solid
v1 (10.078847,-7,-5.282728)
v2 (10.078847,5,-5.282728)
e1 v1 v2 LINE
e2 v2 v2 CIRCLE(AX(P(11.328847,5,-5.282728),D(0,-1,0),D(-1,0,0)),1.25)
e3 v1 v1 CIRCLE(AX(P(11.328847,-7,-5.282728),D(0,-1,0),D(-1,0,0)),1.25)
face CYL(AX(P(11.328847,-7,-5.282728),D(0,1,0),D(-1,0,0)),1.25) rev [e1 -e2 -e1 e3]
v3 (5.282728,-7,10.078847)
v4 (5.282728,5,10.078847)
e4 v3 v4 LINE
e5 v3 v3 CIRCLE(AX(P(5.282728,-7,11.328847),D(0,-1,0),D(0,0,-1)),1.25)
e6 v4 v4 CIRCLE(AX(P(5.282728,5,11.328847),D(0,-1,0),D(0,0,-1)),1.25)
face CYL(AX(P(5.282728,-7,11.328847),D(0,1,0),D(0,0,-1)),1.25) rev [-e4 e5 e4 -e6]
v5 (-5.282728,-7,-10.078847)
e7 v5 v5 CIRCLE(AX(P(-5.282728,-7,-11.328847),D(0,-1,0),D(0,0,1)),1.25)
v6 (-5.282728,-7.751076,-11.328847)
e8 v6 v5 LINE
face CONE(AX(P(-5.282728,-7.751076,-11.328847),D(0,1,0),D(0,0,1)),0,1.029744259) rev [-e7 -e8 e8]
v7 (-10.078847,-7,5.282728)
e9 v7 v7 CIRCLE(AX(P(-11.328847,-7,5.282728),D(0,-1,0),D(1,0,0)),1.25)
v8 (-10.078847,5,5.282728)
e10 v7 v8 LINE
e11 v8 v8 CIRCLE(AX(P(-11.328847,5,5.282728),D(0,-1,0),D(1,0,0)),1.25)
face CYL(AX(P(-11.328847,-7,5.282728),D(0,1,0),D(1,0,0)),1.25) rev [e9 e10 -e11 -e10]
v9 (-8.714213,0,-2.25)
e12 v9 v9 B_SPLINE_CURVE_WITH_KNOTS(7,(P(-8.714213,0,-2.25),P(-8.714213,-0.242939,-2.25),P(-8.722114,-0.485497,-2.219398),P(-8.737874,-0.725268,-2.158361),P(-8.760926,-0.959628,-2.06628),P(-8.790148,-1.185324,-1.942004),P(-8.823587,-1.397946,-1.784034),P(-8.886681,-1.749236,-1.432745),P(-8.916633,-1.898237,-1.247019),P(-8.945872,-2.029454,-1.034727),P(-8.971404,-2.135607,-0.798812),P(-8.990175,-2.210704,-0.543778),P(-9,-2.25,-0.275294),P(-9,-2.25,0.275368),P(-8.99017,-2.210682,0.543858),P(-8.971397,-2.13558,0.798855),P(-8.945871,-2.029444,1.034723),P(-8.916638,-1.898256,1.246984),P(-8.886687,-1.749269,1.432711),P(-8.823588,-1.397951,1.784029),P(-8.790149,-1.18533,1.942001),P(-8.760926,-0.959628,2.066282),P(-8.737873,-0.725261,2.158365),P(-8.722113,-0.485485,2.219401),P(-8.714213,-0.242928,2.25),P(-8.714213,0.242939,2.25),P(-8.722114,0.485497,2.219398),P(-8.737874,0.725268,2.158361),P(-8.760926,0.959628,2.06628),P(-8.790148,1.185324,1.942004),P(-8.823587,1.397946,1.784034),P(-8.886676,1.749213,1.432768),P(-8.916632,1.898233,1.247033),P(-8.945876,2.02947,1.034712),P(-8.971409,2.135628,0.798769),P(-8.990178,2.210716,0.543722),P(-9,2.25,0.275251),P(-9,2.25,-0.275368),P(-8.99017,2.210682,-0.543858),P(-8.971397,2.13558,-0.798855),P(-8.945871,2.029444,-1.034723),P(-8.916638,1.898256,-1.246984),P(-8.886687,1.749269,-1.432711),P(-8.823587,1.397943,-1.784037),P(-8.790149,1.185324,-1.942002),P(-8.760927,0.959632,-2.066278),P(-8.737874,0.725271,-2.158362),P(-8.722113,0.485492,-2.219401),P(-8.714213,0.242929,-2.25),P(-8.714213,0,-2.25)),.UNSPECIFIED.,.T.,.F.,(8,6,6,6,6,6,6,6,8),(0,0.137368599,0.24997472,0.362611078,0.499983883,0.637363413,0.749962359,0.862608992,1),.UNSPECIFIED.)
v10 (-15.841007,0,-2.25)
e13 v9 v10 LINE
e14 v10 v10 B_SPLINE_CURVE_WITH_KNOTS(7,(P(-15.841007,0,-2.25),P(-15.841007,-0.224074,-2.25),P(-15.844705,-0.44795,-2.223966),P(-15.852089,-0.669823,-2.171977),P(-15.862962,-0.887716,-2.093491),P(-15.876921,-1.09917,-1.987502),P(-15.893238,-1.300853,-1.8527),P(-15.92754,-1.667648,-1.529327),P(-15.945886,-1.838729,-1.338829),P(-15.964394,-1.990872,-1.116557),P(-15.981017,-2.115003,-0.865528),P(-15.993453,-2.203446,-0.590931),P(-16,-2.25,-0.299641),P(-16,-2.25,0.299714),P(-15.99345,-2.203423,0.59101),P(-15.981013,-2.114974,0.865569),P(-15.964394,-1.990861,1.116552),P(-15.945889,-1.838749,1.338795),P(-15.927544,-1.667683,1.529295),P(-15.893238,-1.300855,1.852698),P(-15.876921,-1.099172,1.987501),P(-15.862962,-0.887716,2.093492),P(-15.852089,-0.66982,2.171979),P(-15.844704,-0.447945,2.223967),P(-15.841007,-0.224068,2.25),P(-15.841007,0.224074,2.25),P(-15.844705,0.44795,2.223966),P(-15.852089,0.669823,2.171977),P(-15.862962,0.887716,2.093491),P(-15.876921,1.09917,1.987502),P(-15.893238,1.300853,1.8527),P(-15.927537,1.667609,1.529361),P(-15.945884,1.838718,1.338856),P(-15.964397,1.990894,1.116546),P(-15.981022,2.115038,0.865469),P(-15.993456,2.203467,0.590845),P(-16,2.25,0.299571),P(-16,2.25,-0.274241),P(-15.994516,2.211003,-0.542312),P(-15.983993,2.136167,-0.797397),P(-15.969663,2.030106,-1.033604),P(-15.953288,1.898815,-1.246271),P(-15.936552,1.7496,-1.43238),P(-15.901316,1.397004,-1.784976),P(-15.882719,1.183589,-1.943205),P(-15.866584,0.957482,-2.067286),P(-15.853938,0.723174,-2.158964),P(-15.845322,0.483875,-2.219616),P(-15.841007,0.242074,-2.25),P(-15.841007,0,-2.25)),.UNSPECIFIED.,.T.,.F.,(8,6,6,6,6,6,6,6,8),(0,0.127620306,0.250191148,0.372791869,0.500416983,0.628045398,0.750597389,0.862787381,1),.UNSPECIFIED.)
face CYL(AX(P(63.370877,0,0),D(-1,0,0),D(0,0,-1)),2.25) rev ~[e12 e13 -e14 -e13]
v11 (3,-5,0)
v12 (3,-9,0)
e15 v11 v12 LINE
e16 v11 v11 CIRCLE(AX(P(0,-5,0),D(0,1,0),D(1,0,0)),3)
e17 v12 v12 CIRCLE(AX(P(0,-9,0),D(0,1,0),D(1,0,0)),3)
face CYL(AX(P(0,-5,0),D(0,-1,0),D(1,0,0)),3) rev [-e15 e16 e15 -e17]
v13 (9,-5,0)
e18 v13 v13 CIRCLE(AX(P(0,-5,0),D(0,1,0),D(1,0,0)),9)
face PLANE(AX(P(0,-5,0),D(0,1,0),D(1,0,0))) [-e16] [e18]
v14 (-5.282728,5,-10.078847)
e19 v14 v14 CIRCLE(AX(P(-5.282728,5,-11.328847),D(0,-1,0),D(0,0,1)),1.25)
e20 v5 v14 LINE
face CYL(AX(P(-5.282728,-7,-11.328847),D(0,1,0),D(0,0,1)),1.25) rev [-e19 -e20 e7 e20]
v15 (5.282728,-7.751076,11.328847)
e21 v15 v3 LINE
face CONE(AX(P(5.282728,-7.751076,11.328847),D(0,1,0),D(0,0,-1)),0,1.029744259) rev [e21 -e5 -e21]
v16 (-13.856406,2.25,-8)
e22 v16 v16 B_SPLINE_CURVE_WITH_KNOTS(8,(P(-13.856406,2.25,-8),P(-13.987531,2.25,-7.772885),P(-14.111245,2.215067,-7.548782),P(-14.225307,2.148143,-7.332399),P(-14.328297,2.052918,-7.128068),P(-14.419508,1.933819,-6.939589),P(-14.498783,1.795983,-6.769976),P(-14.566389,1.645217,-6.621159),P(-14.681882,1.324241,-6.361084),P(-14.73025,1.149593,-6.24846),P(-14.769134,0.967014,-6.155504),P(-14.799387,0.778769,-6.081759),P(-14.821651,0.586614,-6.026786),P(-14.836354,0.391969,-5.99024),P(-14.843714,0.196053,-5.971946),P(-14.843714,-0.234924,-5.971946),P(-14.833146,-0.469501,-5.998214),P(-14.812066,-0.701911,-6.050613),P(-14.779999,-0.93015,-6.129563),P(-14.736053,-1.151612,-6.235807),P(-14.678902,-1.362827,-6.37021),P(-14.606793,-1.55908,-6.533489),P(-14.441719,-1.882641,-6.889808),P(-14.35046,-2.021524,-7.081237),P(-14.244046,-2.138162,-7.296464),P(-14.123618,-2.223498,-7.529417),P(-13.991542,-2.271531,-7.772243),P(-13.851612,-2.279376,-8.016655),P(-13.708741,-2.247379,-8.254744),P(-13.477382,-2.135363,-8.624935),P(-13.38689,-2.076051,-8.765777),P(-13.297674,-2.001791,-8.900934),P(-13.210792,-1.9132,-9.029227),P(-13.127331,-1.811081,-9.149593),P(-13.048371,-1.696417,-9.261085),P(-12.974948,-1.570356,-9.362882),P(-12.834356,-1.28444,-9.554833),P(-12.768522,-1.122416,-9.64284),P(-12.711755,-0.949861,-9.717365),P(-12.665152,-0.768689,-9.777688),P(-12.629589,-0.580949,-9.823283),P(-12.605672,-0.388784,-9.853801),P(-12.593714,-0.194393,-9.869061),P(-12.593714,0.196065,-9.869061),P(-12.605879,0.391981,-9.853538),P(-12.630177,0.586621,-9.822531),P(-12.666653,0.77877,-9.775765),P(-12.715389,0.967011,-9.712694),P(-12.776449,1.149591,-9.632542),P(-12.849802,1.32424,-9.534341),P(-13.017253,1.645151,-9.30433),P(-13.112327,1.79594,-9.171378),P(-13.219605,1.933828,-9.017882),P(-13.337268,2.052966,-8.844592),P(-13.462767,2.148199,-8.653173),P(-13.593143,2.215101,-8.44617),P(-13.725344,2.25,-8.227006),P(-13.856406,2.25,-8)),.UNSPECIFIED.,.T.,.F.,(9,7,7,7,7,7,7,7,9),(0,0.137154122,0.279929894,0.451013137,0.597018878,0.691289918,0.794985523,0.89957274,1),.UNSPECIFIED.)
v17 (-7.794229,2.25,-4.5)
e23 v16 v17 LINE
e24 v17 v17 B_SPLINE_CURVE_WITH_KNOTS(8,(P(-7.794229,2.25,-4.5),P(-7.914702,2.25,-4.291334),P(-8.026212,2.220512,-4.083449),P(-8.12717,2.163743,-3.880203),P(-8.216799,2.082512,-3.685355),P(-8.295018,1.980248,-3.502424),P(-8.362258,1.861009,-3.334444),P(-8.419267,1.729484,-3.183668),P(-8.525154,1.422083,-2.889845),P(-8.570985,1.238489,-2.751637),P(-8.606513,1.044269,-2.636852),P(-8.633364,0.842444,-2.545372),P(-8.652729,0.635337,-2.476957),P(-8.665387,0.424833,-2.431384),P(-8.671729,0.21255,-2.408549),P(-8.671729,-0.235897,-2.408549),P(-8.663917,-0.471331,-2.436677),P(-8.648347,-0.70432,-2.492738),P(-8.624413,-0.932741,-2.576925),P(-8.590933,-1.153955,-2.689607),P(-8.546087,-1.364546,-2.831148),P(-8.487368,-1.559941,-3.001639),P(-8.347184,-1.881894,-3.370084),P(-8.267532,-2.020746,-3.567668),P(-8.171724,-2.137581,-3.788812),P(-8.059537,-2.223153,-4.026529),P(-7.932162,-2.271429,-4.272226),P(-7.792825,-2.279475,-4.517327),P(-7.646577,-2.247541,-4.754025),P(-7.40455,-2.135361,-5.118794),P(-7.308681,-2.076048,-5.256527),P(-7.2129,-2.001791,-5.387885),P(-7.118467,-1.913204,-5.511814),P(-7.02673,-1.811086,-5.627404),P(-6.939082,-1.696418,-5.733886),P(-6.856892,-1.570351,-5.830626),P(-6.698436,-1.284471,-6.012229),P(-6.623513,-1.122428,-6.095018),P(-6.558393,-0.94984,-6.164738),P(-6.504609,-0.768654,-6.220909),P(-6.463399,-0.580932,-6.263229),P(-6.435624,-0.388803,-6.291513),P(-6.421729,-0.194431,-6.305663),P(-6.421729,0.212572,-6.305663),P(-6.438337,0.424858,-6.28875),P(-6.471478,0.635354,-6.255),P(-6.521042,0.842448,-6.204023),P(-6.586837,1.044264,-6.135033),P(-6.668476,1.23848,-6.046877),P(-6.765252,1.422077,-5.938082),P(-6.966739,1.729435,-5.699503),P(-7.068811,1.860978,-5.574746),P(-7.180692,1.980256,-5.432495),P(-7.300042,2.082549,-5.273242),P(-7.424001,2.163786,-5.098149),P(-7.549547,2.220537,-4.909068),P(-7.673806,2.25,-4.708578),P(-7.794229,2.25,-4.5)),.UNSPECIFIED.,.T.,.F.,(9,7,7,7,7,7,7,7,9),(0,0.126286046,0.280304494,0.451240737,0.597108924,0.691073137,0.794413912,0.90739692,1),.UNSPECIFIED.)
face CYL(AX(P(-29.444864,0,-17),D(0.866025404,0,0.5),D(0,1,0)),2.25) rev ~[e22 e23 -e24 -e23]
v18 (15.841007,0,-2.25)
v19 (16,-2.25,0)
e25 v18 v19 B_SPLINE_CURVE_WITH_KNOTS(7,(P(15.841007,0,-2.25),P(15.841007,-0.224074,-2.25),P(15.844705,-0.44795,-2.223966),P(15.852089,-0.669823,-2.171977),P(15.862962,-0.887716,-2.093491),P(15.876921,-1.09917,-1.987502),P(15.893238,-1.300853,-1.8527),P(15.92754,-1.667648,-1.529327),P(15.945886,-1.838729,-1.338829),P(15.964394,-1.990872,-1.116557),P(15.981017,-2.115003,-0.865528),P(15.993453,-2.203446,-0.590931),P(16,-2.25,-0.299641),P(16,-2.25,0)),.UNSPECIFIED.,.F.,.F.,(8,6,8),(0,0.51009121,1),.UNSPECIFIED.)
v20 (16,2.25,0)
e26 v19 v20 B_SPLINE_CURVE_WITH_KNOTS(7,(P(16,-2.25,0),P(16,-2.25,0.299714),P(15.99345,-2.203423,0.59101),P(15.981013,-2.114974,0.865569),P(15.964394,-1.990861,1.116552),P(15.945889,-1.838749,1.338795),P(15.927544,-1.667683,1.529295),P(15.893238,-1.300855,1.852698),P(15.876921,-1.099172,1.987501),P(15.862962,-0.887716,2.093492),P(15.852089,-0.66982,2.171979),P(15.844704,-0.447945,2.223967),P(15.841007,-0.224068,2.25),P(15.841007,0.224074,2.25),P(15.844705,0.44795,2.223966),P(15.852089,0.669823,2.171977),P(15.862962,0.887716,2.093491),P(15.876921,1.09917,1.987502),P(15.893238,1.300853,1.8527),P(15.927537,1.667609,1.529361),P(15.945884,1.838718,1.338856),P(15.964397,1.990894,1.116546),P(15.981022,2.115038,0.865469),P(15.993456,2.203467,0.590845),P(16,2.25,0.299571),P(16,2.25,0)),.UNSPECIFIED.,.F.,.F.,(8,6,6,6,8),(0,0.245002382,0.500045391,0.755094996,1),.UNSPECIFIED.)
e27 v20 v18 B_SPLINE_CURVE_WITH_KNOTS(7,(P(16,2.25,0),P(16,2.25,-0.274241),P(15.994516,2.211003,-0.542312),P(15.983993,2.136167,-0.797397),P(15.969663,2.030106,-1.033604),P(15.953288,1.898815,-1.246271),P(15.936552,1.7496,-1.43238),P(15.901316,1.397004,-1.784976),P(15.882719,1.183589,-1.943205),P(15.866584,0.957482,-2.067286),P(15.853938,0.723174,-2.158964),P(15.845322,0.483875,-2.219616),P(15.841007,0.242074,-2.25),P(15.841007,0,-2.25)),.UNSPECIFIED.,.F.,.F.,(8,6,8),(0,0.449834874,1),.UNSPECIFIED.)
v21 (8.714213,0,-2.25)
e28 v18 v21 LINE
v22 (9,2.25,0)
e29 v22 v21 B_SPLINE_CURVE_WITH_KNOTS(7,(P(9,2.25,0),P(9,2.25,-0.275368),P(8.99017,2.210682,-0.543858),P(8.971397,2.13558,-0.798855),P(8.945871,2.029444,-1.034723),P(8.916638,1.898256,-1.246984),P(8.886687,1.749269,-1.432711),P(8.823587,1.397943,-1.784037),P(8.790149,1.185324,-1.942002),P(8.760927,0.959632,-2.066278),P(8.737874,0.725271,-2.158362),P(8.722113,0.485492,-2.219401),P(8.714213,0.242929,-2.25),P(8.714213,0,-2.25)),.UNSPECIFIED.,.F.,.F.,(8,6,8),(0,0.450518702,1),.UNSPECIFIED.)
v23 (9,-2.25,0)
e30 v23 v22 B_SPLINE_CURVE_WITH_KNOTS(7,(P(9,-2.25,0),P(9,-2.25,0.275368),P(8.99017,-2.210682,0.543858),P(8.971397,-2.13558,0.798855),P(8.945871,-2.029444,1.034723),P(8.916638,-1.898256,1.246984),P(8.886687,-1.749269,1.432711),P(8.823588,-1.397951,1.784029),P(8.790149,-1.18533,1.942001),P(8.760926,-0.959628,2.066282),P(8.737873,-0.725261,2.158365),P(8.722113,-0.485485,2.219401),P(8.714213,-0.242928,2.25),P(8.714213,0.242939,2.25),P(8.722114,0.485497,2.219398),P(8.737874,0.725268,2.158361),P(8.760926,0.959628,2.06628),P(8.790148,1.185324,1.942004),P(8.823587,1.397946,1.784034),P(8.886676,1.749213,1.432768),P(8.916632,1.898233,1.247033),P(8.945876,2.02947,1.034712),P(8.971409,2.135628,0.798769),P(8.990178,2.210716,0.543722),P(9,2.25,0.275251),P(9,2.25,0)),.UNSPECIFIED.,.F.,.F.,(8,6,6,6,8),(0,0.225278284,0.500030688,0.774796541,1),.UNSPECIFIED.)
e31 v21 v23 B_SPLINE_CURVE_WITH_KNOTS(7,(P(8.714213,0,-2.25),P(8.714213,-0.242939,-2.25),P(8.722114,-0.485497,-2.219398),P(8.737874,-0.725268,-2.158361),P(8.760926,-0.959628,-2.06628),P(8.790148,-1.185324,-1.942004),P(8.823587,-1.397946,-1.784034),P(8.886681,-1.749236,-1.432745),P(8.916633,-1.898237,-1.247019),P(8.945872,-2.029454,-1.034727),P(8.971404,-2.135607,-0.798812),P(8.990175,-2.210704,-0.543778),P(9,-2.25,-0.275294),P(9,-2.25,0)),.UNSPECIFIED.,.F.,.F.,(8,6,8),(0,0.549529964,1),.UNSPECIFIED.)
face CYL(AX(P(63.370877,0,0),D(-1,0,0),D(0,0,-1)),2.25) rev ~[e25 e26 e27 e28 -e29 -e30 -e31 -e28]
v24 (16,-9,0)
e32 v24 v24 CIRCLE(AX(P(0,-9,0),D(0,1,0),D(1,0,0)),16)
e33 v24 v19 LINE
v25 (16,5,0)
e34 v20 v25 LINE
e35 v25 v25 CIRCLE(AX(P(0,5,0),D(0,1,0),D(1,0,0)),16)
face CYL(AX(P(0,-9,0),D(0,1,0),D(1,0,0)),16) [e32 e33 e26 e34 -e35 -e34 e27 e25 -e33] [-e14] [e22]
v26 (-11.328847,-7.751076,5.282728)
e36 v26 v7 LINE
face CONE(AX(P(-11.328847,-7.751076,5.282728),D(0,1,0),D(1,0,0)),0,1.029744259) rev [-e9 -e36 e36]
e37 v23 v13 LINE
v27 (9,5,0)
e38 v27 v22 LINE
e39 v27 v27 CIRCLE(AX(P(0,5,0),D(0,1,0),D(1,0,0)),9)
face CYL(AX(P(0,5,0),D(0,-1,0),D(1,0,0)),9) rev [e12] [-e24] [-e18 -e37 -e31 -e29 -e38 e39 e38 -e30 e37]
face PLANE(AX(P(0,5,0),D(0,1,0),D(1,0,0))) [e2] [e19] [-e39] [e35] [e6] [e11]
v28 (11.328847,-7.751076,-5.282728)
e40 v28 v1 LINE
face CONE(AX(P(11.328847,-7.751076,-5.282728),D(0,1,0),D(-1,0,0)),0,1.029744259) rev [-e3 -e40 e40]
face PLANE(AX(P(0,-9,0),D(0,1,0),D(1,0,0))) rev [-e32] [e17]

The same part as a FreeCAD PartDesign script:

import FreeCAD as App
import Part
import Sketcher
from FreeCAD import Vector
Q = App.Units.Quantity


def add_polygon(sketch, points):
    """Adds a closed chain of lines whose ends are joined by coincident constraints."""
    first, n = sketch.GeometryCount, len(points)
    for a, b in zip(points, points[1:] + points[:1]):
        sketch.addGeometry(Part.LineSegment(App.Vector(*a, 0), App.Vector(*b, 0)), False)
    for i in range(n):
        sketch.addConstraint(Sketcher.Constraint("Coincident", first + i, 2, first + (i + 1) % n, 1))

doc = App.newDocument("Part")
params = doc.addObject("Spreadsheet::Sheet", "Params")
for row, (alias, value) in enumerate([
    ("sketch1_width", "13 mm"),
    ("sketch1_width2", "7 mm"),
    ("sketch1_height", "14 mm"),
    ("sketch1_height2", "10 mm"),
    ("revolution_angle", "360 deg"),
    ("sketch2_diameter", "4.5 mm"),
    ("hole_diameter", "4.5 mm"),
    ("sketch3_diameter", "4.5 mm"),
    ("hole2_diameter", "4.5 mm"),
    ("sketch4_diameter", "4.5 mm"),
    ("hole3_diameter", "4.5 mm"),
    ("hole3_depth", "18 mm"),
    ("sketch5_width", "12 mm"),
    ("sketch5_height", "1.25 mm"),
    ("groove_angle", "360 deg"),
], start=1):
    params.set(f"A{row}", alias)
    params.set(f"B{row}", "=" + value)
    params.setAlias(f"B{row}", alias)

body = doc.addObject("PartDesign::Body", "Body")

# Sketch on XY plane
sketch1 = body.newObject("Sketcher::SketchObject", "Sketch")
sketch1.AttachmentSupport = (doc.getObject("XY_Plane"), [""])
sketch1.MapMode = "FlatFace"
add_polygon(sketch1, [(3, -9), (16, -9), (16, 5), (9, 5), (9, -5), (3, -5)])  # lines 0-5
sketch1.addConstraint([
    Sketcher.Constraint("Horizontal", 0),
    Sketcher.Constraint("Vertical", 1),
    Sketcher.Constraint("Horizontal", 2),
    Sketcher.Constraint("Vertical", 3),
    Sketcher.Constraint("Horizontal", 4),
    Sketcher.Constraint("Vertical", 5),
    Sketcher.Constraint("DistanceX", 0, 1, 0, 2, Q("13 mm")),
    Sketcher.Constraint("DistanceX", 2, 2, 2, 1, Q("7 mm")),
    Sketcher.Constraint("DistanceY", 1, 1, 1, 2, Q("14 mm")),
    Sketcher.Constraint("DistanceY", 3, 2, 3, 1, Q("10 mm")),
    Sketcher.Constraint("DistanceX", -1, 1, 0, 2, Q("16 mm")),
    Sketcher.Constraint("DistanceY", 0, 2, -1, 1, Q("9 mm")),
])
sketch1.setExpression("Constraints[12]", "Params.sketch1_width")
sketch1.setExpression("Constraints[13]", "Params.sketch1_width2")
sketch1.setExpression("Constraints[14]", "Params.sketch1_height")
sketch1.setExpression("Constraints[15]", "Params.sketch1_height2")
revolution = body.newObject("PartDesign::Revolution", "Revolution")
revolution.Profile = sketch1
revolution.ReferenceAxis = (sketch1, ["V_Axis"])
revolution.setExpression("Angle", "Params.revolution_angle")

# Sketch on YZ plane
sketch2 = body.newObject("Sketcher::SketchObject", "Sketch001")
sketch2.AttachmentSupport = (doc.getObject("YZ_Plane"), [""])
sketch2.MapMode = "FlatFace"
sketch2.AttachmentOffset = App.Placement(Vector(0, 0, 16), App.Rotation())
sketch2.addGeometry(Part.Circle(Vector(0, 0, 0), Vector(0, 0, 1), 2.2), False)
sketch2.addConstraint([
    Sketcher.Constraint("Coincident", 0, 3, -1, 1),
    Sketcher.Constraint("Diameter", 0, Q("4.5 mm")),
])
sketch2.setExpression("Constraints[1]", "Params.sketch2_diameter")
doc.recompute()
hole = body.newObject("PartDesign::Hole", "Hole")
hole.Profile = sketch2
hole.ThreadType = "None"
hole.setExpression("Diameter", "Params.hole_diameter")
hole.DepthType = "ThroughAll"

# Sketch on YZ plane
sketch3 = body.newObject("Sketcher::SketchObject", "Sketch002")
sketch3.AttachmentSupport = (doc.getObject("YZ_Plane"), [""])
sketch3.MapMode = "FlatFace"
sketch3.addGeometry(Part.Circle(Vector(0, 0, 0), Vector(0, 0, 1), 2.2), False)
sketch3.addConstraint([
    Sketcher.Constraint("Coincident", 0, 3, -1, 1),
    Sketcher.Constraint("Diameter", 0, Q("4.5 mm")),
])
sketch3.setExpression("Constraints[1]", "Params.sketch3_diameter")
doc.recompute()
hole2 = body.newObject("PartDesign::Hole", "Hole001")
hole2.Profile = sketch3
hole2.ThreadType = "None"
hole2.setExpression("Diameter", "Params.hole2_diameter")
hole2.DepthType = "ThroughAll"

# Sketch on an angled plane
sketch4 = body.newObject("Sketcher::SketchObject", "Sketch003")
sketch4.Placement = App.Placement(Vector(-13.856406, 0, -8), App.Rotation(Vector(0, -1, 0), Vector(-0.5, 0, 0.866025404), Vector(-0.866025404, 0, -0.5), "ZXY"))
sketch4.addGeometry(Part.Circle(Vector(0, 0, 0), Vector(0, 0, 1), 2.2), False)
sketch4.addConstraint([
    Sketcher.Constraint("Coincident", 0, 3, -1, 1),
    Sketcher.Constraint("Diameter", 0, Q("4.5 mm")),
])
sketch4.setExpression("Constraints[1]", "Params.sketch4_diameter")
doc.recompute()
hole3 = body.newObject("PartDesign::Hole", "Hole002")
hole3.Profile = sketch4
hole3.ThreadType = "None"
hole3.setExpression("Diameter", "Params.hole3_diameter")
hole3.DepthType = "Dimension"
hole3.setExpression("Depth", "Params.hole3_depth")
hole3.DrillPoint = "Angled"
hole3.DrillPointAngle = 118

# Sketch on YZ plane
sketch5 = body.newObject("Sketcher::SketchObject", "Sketch004")
sketch5.AttachmentSupport = (doc.getObject("YZ_Plane"), [""])
sketch5.MapMode = "FlatFace"
sketch5.AttachmentOffset = App.Placement(Vector(0, 0, -5.282728), App.Rotation())
add_polygon(sketch5, [(-7.8, -11.3), (5, -11.3), (5, -10.1), (-7, -10.1)])  # lines 0-3
sketch5.addGeometry(Part.LineSegment(Vector(5, -11.3, 0), Vector(-7.8, -11.3, 0)), True)  # axis
sketch5.addConstraint([
    Sketcher.Constraint("Horizontal", 0),
    Sketcher.Constraint("Vertical", 1),
    Sketcher.Constraint("Horizontal", 2),
    Sketcher.Constraint("Horizontal", 4),
    Sketcher.Constraint("Coincident", 4, 1, 0, 2),
    Sketcher.Constraint("Equal", 0, 4),
    Sketcher.Constraint("DistanceX", 2, 2, 2, 1, Q("12 mm")),
    Sketcher.Constraint("Angle", 3, Q("-121 deg")),
    Sketcher.Constraint("DistanceX", -1, 1, 0, 2, Q("5 mm")),
    Sketcher.Constraint("DistanceY", 1, 1, 1, 2, Q("1.25 mm")),
    Sketcher.Constraint("DistanceY", 0, 2, -1, 1, Q("11.328847 mm")),
])
sketch5.setExpression("Constraints[10]", "Params.sketch5_width")
sketch5.setExpression("Constraints[13]", "Params.sketch5_height")
groove = body.newObject("PartDesign::Groove", "Groove")
groove.Profile = sketch5
groove.ReferenceAxis = (sketch5, ["Axis0"])
groove.setExpression("Angle", "Params.groove_angle")
doc.recompute()

polarpattern = body.newObject("PartDesign::PolarPattern", "PolarPattern")
polarpattern.Originals = [groove]
polarpattern.Axis = (doc.getObject("Y_Axis"), [""])
polarpattern.Angle = 360
polarpattern.Occurrences = 4
body.Tip = polarpattern

doc.recompute()
